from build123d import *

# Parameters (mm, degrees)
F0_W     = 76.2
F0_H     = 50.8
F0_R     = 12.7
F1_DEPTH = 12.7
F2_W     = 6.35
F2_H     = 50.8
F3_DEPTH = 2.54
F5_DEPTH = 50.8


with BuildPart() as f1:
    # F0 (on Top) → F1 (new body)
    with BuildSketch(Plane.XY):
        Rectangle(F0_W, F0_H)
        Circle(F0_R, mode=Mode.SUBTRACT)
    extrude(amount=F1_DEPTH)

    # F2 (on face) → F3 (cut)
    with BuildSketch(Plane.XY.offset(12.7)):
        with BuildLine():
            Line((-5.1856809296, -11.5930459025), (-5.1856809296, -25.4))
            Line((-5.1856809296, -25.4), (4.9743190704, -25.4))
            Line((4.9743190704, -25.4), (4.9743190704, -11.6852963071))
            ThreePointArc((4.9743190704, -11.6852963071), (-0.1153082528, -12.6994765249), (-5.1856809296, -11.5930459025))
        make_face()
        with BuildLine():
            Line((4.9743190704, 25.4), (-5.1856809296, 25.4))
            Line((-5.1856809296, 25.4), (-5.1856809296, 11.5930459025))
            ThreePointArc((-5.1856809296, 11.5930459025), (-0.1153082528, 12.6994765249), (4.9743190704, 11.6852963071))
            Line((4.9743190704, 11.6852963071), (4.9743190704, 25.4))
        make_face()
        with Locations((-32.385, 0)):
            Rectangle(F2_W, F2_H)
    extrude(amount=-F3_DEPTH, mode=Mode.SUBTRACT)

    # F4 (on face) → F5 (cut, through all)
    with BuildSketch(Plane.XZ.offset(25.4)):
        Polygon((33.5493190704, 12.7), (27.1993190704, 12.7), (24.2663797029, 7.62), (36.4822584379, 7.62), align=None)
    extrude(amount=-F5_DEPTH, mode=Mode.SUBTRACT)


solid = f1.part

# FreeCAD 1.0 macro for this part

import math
import FreeCAD as App
import Part
import Sketcher
from FreeCAD import Vector
Q = App.Units.Quantity


def add_polygon(sketch, points):
    """Adds a closed chain of lines whose ends are joined by coincident constraints."""
    first, n = sketch.GeometryCount, len(points)
    for a, b in zip(points, points[1:] + points[:1]):
        sketch.addGeometry(Part.LineSegment(App.Vector(*a, 0), App.Vector(*b, 0)), False)
    for i in range(n):
        sketch.addConstraint(Sketcher.Constraint("Coincident", first + i, 2, first + (i + 1) % n, 1))

doc = App.newDocument("Part")
body = doc.addObject("PartDesign::Body", "Body")

sketch1 = doc.addObject("Sketcher::SketchObject", "Sketch")
body.addObject(sketch1)
sketch1.AttachmentSupport = (doc.XY_Plane, [""])
sketch1.MapMode = "FlatFace"
add_polygon(sketch1, [(-38.1, 25.4), (-38.1, -25.4), (38.1, -25.4), (38.1, 25.4)])
sketch1.addGeometry(Part.Circle(Vector(0, 0, 0), Vector(0, 0, 1), 12.7), False)
sketch1.addConstraint([
    Sketcher.Constraint("Vertical", 0),
    Sketcher.Constraint("Horizontal", 1),
    Sketcher.Constraint("Vertical", 2),
    Sketcher.Constraint("Horizontal", 3),
    Sketcher.Constraint("Coincident", 4, 3, -1, 1),
    Sketcher.Constraint("Symmetric", 0, 2, 2, 2, -1, 1),
    Sketcher.Constraint("Diameter", 4, Q("1 in")),
    Sketcher.Constraint("DistanceX", 1, 1, 1, 2, Q("3 in")),
    Sketcher.Constraint("DistanceY", 0, 2, 0, 1, Q("2 in")),
])
pad1 = doc.addObject("PartDesign::Pad", "Pad")
body.addObject(pad1)
pad1.Profile = sketch1
pad1.Length = Q("0.5 in")

sketch2 = doc.addObject("Sketcher::SketchObject", "Sketch001")
body.addObject(sketch2)
sketch2.AttachmentSupport = (doc.XY_Plane, [""])
sketch2.MapMode = "FlatFace"
sketch2.AttachmentOffset = App.Placement(Vector(0, 0, 0.5 * 25.4), App.Rotation())
sketch2.addGeometry(Part.LineSegment(Vector(-5.185681, -11.593046, 0), Vector(-5.185681, -25.4, 0)), False)
sketch2.addGeometry(Part.LineSegment(Vector(-5.185681, -25.4, 0), Vector(4.974319, -25.4, 0)), False)
sketch2.addGeometry(Part.LineSegment(Vector(4.974319, -25.4, 0), Vector(4.974319, -11.685296, 0)), False)
sketch2.addGeometry(Part.ArcOfCircle(Part.Circle(Vector(0, 0, 0), Vector(0, 0, 1), 12.7), math.radians(-114.099427), math.radians(-66.941009)), False)
sketch2.addGeometry(Part.LineSegment(Vector(4.974319, 25.4, 0), Vector(-5.185681, 25.4, 0)), False)
sketch2.addGeometry(Part.LineSegment(Vector(-5.185681, 25.4, 0), Vector(-5.185681, 11.593046, 0)), False)
sketch2.addGeometry(Part.ArcOfCircle(Part.Circle(Vector(0, 0, 0), Vector(0, 0, 1), 12.7), math.radians(66.941009), math.radians(114.099427)), False)
sketch2.addGeometry(Part.LineSegment(Vector(4.974319, 11.685296, 0), Vector(4.974319, 25.4, 0)), False)
add_polygon(sketch2, [(-35.56, 25.4), (-35.56, -25.4), (-29.21, -25.4), (-29.21, 25.4)])
sketch2.addConstraint([
    Sketcher.Constraint("Coincident", 0, 2, 1, 1),
    Sketcher.Constraint("Coincident", 1, 2, 2, 1),
    Sketcher.Constraint("Coincident", 2, 2, 3, 2),
    Sketcher.Constraint("Coincident", 3, 1, 0, 1),
    Sketcher.Constraint("Coincident", 4, 2, 5, 1),
    Sketcher.Constraint("Coincident", 5, 2, 6, 2),
    Sketcher.Constraint("Coincident", 6, 1, 7, 1),
    Sketcher.Constraint("Coincident", 7, 2, 4, 1),
    Sketcher.Constraint("Vertical", 0),
    Sketcher.Constraint("Horizontal", 1),
    Sketcher.Constraint("Vertical", 2),
    Sketcher.Constraint("Horizontal", 4),
    Sketcher.Constraint("Vertical", 5),
    Sketcher.Constraint("Vertical", 7),
    Sketcher.Constraint("Vertical", 8),
    Sketcher.Constraint("Horizontal", 9),
    Sketcher.Constraint("Vertical", 10),
    Sketcher.Constraint("Horizontal", 11),
    Sketcher.Constraint("Coincident", 3, 3, -1, 1),
    Sketcher.Constraint("Coincident", 6, 3, -1, 1),
    Sketcher.Constraint("Equal", 3, 6),
    Sketcher.Constraint("Symmetric", 0, 2, 4, 2, -1),
    Sketcher.Constraint("Horizontal", 1, 2, 8, 2),
    Sketcher.Constraint("Horizontal", 7, 2, 10, 2),
    Sketcher.Constraint("Vertical", 2, 2, 6, 1),
    Sketcher.Constraint("Radius", 3, Q("0.5 in")),
    Sketcher.Constraint("DistanceY", 8, 2, 8, 1, Q("2 in")),
    Sketcher.Constraint("DistanceX", 1, 1, 1, 2, Q("0.4 in")),
    Sketcher.Constraint("DistanceX", 9, 1, 9, 2, Q("0.25 in")),
    Sketcher.Constraint("DistanceX", 8, 2, -1, 1, Q("1.4 in")),
    Sketcher.Constraint("DistanceY", 0, 2, 0, 1, Q("13.806954 mm")),
])
pocket1 = doc.addObject("PartDesign::Pocket", "Pocket")
body.addObject(pocket1)
pocket1.Profile = sketch2
pocket1.Length = Q("0.1 in")

sketch3 = doc.addObject("Sketcher::SketchObject", "Sketch002")
body.addObject(sketch3)
sketch3.AttachmentSupport = (doc.XZ_Plane, [""])
sketch3.MapMode = "FlatFace"
sketch3.AttachmentOffset = App.Placement(Vector(0, 0, 1 * 25.4), App.Rotation())
add_polygon(sketch3, [(33.549319, 12.7), (27.199319, 12.7), (24.26638, 7.62), (36.482258, 7.62)])
sketch3.addConstraint([
    Sketcher.Constraint("Horizontal", 0),
    Sketcher.Constraint("Horizontal", 2),
    Sketcher.Constraint("Equal", 1, 3),
    Sketcher.Constraint("Angle", 1, Q("-120 deg")),
    Sketcher.Constraint("DistanceX", 0, 2, 0, 1, Q("0.25 in")),
    Sketcher.Constraint("DistanceY", -1, 1, 0, 2, Q("0.5 in")),
    Sketcher.Constraint("DistanceY", -1, 1, 1, 2, Q("0.3 in")),
    Sketcher.Constraint("DistanceX", -1, 1, 0, 2, Q("27.199319 mm")),
])
pocket2 = doc.addObject("PartDesign::Pocket", "Pocket001")
body.addObject(pocket2)
pocket2.Profile = sketch3
pocket2.Type = "ThroughAll"

doc.recompute()
